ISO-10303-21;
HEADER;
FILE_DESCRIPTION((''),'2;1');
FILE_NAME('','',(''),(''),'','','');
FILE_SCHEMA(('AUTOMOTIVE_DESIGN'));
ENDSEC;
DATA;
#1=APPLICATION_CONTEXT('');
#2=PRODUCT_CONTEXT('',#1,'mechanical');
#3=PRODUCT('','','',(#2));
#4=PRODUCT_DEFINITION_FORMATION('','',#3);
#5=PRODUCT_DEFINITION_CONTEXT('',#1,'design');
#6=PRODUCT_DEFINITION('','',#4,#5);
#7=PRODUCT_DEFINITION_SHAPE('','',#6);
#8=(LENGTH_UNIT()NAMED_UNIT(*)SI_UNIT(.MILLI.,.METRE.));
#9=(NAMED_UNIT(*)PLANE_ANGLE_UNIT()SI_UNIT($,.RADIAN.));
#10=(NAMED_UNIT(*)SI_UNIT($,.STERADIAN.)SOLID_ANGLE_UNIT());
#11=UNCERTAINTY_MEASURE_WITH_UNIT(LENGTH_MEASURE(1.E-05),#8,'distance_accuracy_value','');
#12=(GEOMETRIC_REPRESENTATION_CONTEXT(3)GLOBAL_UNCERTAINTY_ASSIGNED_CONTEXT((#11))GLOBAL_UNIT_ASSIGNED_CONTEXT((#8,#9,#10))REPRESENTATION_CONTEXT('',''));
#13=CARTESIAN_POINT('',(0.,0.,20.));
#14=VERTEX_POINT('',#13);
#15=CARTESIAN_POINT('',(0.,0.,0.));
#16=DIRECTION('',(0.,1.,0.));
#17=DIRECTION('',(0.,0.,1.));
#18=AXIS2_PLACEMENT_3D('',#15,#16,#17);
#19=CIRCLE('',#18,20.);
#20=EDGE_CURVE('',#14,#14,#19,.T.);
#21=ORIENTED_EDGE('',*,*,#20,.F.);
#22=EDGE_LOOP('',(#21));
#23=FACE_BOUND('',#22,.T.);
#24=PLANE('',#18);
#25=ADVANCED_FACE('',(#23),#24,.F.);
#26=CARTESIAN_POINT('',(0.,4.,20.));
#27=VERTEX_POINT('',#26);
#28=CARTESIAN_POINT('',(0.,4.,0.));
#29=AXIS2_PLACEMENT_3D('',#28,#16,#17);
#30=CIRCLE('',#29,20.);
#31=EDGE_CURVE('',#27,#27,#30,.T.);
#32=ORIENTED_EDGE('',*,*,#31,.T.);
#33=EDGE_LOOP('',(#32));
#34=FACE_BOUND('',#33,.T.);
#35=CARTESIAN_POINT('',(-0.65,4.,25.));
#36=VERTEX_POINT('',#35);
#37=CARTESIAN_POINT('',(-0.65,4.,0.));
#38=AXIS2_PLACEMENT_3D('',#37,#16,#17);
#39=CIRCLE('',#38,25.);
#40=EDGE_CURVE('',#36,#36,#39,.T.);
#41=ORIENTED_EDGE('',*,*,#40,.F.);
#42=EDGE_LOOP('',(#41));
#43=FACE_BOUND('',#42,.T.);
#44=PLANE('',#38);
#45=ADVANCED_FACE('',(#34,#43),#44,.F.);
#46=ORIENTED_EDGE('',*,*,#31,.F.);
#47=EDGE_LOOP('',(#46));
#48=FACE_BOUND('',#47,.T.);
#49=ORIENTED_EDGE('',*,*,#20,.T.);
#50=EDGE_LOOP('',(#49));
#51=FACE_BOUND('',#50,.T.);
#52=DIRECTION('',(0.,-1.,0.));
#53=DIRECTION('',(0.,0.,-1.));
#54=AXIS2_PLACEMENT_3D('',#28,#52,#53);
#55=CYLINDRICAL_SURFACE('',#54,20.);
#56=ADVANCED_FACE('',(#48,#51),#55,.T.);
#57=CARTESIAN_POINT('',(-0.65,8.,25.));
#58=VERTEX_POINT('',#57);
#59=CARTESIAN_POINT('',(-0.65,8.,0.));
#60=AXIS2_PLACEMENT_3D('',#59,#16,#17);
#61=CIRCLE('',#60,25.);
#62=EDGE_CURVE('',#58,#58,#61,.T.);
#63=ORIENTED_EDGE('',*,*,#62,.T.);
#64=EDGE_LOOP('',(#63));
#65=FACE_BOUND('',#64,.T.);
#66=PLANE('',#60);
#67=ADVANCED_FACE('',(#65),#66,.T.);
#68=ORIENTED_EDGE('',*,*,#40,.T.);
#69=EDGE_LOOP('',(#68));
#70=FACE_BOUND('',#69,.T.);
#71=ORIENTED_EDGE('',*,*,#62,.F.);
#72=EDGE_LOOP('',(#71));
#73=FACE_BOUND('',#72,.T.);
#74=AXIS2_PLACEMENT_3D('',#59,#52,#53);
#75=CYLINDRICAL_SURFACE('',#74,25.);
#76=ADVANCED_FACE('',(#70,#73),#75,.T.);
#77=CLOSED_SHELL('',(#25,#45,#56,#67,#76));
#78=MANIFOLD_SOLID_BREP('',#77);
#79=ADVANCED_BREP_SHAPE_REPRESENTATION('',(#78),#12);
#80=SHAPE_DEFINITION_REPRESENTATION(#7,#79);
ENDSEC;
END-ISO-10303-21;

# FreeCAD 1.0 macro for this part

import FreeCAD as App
import Part
import Sketcher

doc = App.newDocument("Part")
body = doc.addObject("PartDesign::Body", "Body")

# Sketch on XZ plane
sketch1 = doc.addObject("Sketcher::SketchObject", "Sketch")
body.addObject(sketch1)
sketch1.AttachmentSupport = (doc.XZ_Plane, [""])
sketch1.MapMode = "FlatFace"
sketch1.addGeometry(Part.Circle(App.Vector(0, 0, 0), App.Vector(0, 0, 1), 20), False)
sketch1.addConstraint([
    Sketcher.Constraint("Coincident", 0, 3, -1, 1),
    Sketcher.Constraint("Diameter", 0, 40.0),
])
pad1 = doc.addObject("PartDesign::Pad", "Pad")
body.addObject(pad1)
pad1.Profile = sketch1
pad1.Length = 4
pad1.Reversed = True

# Sketch on XZ plane
sketch2 = doc.addObject("Sketcher::SketchObject", "Sketch001")
body.addObject(sketch2)
sketch2.AttachmentSupport = (doc.XZ_Plane, [""])
sketch2.MapMode = "FlatFace"
sketch2.AttachmentOffset = App.Placement(App.Vector(0, 0, -4), App.Rotation())
sketch2.addGeometry(Part.Circle(App.Vector(-1, 0, 0), App.Vector(0, 0, 1), 25), False)
sketch2.addConstraint([
    Sketcher.Constraint("PointOnObject", 0, 3, -1),
    Sketcher.Constraint("Diameter", 0, 50.0),
    Sketcher.Constraint("DistanceX", 0, 3, -1, 1, 0.65),
])
pad2 = doc.addObject("PartDesign::Pad", "Pad001")
body.addObject(pad2)
pad2.Profile = sketch2
pad2.Length = 4
pad2.Reversed = True

doc.recompute()
